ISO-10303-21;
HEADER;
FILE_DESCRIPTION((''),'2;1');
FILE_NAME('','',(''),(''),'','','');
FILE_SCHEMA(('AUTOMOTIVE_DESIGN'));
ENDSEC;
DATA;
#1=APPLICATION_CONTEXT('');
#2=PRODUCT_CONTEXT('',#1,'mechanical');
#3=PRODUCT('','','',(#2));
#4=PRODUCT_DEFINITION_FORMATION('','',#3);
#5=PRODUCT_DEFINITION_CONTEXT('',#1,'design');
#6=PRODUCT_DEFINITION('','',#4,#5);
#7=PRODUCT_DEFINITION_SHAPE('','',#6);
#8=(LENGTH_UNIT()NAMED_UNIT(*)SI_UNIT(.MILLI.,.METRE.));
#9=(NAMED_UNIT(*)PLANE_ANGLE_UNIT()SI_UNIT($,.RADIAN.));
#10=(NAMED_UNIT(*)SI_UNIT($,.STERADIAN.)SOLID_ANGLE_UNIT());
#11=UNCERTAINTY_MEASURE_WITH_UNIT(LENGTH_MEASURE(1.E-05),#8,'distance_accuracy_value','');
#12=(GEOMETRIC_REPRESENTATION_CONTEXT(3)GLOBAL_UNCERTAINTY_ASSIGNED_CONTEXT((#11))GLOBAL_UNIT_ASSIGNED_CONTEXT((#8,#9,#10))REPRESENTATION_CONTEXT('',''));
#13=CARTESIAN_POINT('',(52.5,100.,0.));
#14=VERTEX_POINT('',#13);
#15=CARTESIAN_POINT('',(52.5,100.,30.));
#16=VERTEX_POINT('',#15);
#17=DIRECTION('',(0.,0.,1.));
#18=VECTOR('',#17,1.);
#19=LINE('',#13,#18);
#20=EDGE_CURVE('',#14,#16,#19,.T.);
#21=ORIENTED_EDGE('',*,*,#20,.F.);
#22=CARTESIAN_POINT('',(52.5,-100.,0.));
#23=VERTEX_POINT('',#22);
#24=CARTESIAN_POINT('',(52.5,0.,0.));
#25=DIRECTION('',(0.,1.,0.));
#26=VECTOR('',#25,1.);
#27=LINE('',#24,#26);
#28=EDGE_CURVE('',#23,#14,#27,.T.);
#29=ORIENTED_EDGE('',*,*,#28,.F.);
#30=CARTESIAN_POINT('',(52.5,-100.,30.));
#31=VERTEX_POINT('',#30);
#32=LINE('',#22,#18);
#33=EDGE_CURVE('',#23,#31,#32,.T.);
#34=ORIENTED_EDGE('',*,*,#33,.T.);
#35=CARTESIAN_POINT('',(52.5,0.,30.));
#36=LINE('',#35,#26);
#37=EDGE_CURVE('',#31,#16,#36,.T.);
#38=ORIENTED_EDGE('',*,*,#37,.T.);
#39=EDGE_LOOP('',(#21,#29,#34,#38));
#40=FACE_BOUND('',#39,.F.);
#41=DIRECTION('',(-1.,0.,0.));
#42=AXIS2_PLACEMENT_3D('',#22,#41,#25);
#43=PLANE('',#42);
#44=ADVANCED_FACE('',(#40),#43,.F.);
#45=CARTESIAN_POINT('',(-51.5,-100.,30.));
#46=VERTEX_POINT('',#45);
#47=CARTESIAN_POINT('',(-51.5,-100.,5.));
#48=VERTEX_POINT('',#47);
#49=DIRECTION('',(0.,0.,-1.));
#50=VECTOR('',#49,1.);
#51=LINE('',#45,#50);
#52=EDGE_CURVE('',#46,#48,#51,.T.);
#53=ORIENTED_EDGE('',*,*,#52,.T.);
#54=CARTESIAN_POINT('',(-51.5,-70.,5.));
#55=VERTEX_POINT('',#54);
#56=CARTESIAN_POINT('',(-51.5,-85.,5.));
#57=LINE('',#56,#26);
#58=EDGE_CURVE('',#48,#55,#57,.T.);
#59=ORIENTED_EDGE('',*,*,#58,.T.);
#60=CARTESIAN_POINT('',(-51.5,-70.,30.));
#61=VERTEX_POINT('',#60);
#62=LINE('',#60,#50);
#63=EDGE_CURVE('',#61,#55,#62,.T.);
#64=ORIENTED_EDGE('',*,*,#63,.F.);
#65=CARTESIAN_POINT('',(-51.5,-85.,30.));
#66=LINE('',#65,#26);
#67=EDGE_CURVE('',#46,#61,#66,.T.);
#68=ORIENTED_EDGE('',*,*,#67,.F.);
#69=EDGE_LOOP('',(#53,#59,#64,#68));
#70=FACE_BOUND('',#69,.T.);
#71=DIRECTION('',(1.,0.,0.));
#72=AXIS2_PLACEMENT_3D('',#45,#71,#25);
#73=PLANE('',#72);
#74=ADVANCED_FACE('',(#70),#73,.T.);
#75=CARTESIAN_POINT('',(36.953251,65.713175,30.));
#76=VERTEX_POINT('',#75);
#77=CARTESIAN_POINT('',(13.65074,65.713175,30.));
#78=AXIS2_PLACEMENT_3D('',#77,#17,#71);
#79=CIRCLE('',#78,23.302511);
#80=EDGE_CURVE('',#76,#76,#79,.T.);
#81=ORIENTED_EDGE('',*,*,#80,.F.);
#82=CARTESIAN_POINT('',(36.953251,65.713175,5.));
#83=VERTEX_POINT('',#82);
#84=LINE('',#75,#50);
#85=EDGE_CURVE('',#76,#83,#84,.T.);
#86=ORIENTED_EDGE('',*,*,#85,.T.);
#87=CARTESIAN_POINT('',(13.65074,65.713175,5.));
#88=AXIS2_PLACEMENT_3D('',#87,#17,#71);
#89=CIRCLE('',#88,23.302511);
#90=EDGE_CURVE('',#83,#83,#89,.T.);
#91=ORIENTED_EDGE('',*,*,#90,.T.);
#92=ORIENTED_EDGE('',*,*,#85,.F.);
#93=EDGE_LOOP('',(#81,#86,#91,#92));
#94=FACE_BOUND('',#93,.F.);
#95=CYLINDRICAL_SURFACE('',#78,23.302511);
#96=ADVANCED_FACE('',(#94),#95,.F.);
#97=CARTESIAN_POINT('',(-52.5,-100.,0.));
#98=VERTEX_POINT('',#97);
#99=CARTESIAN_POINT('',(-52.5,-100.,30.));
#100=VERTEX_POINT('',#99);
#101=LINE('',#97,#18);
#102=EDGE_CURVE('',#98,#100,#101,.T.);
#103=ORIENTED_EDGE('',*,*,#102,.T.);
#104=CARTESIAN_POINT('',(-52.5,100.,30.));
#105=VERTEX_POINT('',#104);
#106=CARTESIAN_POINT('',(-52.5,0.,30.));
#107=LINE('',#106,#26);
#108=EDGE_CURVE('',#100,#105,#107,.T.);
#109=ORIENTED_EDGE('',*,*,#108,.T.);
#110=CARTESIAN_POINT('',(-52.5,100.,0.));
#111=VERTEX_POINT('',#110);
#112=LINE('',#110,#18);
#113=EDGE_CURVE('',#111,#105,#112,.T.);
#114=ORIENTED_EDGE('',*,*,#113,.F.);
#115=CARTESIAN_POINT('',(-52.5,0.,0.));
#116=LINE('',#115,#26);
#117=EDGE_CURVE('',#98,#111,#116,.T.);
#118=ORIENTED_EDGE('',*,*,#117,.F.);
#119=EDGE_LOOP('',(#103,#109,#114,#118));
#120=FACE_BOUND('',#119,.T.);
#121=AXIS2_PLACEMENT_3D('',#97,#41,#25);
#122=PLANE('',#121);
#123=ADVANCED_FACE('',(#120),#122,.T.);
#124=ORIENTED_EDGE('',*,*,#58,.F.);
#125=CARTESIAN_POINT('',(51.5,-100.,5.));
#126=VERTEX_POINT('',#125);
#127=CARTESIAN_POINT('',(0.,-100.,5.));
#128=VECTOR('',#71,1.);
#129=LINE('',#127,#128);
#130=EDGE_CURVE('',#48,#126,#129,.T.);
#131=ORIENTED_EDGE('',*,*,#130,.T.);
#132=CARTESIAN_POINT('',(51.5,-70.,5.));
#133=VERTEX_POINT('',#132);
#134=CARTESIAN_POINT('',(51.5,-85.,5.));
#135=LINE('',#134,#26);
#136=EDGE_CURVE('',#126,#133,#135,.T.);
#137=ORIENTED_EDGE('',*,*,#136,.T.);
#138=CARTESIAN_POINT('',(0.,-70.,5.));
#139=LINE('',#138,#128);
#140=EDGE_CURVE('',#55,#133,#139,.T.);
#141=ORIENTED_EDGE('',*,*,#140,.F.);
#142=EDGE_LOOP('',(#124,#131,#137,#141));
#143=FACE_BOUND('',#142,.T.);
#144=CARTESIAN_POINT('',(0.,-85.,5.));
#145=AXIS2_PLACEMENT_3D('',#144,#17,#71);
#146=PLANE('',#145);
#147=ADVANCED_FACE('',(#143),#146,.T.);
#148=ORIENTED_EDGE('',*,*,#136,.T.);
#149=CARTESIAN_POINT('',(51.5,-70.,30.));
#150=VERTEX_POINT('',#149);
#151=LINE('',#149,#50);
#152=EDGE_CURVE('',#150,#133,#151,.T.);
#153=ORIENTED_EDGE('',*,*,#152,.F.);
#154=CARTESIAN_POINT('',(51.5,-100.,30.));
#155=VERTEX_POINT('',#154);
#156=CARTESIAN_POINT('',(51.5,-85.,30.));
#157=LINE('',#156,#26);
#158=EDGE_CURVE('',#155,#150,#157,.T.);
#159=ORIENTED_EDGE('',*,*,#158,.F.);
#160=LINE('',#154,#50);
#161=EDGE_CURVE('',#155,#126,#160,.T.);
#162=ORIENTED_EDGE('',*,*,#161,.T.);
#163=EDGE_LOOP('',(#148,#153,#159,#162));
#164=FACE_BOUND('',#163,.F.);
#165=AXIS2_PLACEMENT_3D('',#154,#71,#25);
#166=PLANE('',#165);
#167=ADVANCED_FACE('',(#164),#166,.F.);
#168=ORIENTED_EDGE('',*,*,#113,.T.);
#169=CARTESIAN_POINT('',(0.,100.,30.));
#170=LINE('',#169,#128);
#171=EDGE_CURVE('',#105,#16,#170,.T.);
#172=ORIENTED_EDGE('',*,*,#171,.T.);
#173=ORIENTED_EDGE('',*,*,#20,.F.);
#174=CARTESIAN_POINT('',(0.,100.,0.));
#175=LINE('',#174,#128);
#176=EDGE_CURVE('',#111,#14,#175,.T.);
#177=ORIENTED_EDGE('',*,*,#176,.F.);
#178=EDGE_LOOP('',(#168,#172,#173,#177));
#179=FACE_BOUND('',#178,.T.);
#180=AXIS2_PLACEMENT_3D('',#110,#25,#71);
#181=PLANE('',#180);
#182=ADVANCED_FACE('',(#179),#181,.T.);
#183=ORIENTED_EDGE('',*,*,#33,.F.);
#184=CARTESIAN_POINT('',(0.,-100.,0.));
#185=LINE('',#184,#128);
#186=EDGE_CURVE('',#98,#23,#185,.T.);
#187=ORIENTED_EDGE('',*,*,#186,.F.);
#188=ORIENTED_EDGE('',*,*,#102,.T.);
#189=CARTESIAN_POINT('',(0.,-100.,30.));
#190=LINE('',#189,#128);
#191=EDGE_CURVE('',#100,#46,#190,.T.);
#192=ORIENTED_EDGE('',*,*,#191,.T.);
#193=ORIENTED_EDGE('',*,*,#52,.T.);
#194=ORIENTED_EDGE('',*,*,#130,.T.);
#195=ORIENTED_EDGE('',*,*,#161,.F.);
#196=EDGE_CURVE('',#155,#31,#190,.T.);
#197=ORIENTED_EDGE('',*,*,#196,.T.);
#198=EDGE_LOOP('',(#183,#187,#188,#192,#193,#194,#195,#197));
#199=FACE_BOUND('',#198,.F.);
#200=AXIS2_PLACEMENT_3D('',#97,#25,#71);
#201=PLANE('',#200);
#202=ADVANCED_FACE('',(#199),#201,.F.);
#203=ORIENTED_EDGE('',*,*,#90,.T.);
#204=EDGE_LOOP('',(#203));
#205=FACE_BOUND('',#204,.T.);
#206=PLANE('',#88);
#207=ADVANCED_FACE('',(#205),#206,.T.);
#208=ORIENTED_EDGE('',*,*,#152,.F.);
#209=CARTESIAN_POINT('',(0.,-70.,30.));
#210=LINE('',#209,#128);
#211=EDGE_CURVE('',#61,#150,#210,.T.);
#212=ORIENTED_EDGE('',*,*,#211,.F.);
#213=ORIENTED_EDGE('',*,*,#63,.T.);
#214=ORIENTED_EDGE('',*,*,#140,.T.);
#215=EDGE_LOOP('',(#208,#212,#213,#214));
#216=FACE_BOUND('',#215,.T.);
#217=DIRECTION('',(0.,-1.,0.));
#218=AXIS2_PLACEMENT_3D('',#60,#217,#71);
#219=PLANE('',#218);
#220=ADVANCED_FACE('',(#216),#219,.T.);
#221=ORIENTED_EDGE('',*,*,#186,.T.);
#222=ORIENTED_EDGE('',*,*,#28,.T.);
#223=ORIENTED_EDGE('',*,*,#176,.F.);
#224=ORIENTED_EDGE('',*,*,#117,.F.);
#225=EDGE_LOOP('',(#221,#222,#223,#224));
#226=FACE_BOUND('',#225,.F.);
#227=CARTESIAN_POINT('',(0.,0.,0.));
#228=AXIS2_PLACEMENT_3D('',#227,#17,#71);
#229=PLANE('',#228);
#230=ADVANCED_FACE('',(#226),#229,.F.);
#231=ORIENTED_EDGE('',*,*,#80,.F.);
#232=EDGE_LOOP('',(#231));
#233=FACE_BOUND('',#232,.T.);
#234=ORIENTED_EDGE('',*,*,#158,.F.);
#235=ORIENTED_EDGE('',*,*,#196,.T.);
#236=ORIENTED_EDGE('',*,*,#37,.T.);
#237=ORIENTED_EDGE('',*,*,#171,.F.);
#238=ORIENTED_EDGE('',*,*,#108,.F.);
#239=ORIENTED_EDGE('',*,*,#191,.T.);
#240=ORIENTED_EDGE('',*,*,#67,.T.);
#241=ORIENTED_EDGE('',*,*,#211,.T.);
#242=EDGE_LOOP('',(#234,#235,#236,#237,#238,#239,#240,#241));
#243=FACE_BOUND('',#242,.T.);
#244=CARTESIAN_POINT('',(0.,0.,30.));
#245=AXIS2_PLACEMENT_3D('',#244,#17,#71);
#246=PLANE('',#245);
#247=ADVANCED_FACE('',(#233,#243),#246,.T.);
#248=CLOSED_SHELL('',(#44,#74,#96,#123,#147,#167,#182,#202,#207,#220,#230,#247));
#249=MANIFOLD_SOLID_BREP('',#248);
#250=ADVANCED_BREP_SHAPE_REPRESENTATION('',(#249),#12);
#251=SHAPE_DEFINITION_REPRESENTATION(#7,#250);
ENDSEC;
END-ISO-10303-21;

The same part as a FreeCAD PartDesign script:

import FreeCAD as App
import Part
import Sketcher

doc = App.newDocument("Part")
body = doc.addObject("PartDesign::Body", "Body")

# Sketch on XY plane
sketch1 = doc.addObject("Sketcher::SketchObject", "Sketch")
body.addObject(sketch1)
sketch1.AttachmentSupport = (doc.XY_Plane, [""])
sketch1.MapMode = "FlatFace"
sketch1.addGeometry(Part.LineSegment(App.Vector(-52.5, 100, 0), App.Vector(-52.5, -100, 0)), False)
sketch1.addGeometry(Part.LineSegment(App.Vector(-52.5, -100, 0), App.Vector(52.5, -100, 0)), False)
sketch1.addGeometry(Part.LineSegment(App.Vector(52.5, -100, 0), App.Vector(52.5, 100, 0)), False)
sketch1.addGeometry(Part.LineSegment(App.Vector(52.5, 100, 0), App.Vector(-52.5, 100, 0)), False)
sketch1.addConstraint(Sketcher.Constraint("Coincident", 0, 2, 1, 1))
sketch1.addConstraint(Sketcher.Constraint("Coincident", 1, 2, 2, 1))
sketch1.addConstraint(Sketcher.Constraint("Coincident", 2, 2, 3, 1))
sketch1.addConstraint(Sketcher.Constraint("Coincident", 3, 2, 0, 1))
sketch1.addConstraint(Sketcher.Constraint("Vertical", 0))
sketch1.addConstraint(Sketcher.Constraint("Horizontal", 1))
sketch1.addConstraint(Sketcher.Constraint("Vertical", 2))
sketch1.addConstraint(Sketcher.Constraint("Horizontal", 3))
sketch1.addConstraint(Sketcher.Constraint("Symmetric", 0, 2, 2, 2, -1, 1))
sketch1.addConstraint(Sketcher.Constraint("DistanceX", 1, 1, 1, 2, 105.0))
sketch1.addConstraint(Sketcher.Constraint("DistanceY", 0, 2, 0, 1, 200.0))
pad1 = doc.addObject("PartDesign::Pad", "Pad")
body.addObject(pad1)
pad1.Profile = sketch1
pad1.Length = 30

# Sketch on XY plane
sketch2 = doc.addObject("Sketcher::SketchObject", "Sketch001")
body.addObject(sketch2)
sketch2.AttachmentSupport = (doc.XY_Plane, [""])
sketch2.MapMode = "FlatFace"
sketch2.AttachmentOffset = App.Placement(App.Vector(0, 0, 30), App.Rotation())
sketch2.addGeometry(Part.LineSegment(App.Vector(-51.5, -70, 0), App.Vector(-51.5, -100, 0)), False)
sketch2.addGeometry(Part.LineSegment(App.Vector(-51.5, -100, 0), App.Vector(51.5, -100, 0)), False)
sketch2.addGeometry(Part.LineSegment(App.Vector(51.5, -100, 0), App.Vector(51.5, -70, 0)), False)
sketch2.addGeometry(Part.LineSegment(App.Vector(51.5, -70, 0), App.Vector(-51.5, -70, 0)), False)
sketch2.addGeometry(Part.Circle(App.Vector(13.65074, 65.713175, 0), App.Vector(0, 0, 1), 23.302511), False)
sketch2.addConstraint(Sketcher.Constraint("Coincident", 0, 2, 1, 1))
sketch2.addConstraint(Sketcher.Constraint("Coincident", 1, 2, 2, 1))
sketch2.addConstraint(Sketcher.Constraint("Coincident", 2, 2, 3, 1))
sketch2.addConstraint(Sketcher.Constraint("Coincident", 3, 2, 0, 1))
sketch2.addConstraint(Sketcher.Constraint("Vertical", 0))
sketch2.addConstraint(Sketcher.Constraint("Horizontal", 1))
sketch2.addConstraint(Sketcher.Constraint("Vertical", 2))
sketch2.addConstraint(Sketcher.Constraint("Horizontal", 3))
sketch2.addConstraint(Sketcher.Constraint("DistanceX", 1, 1, 1, 2, 103.0))
sketch2.addConstraint(Sketcher.Constraint("DistanceY", 0, 2, 0, 1, 30.0))
sketch2.addConstraint(Sketcher.Constraint("DistanceY", 0, 2, -1, 1, 100.0))
sketch2.addConstraint(Sketcher.Constraint("DistanceX", 0, 2, -1, 1, 51.5))
sketch2.addConstraint(Sketcher.Constraint("Diameter", 4, 46.605022))
sketch2.addConstraint(Sketcher.Constraint("DistanceX", -1, 1, 4, 3, 13.65074))
sketch2.addConstraint(Sketcher.Constraint("DistanceY", -1, 1, 4, 3, 65.713175))
pocket1 = doc.addObject("PartDesign::Pocket", "Pocket")
body.addObject(pocket1)
pocket1.Profile = sketch2
pocket1.Length = 25

doc.recompute()
